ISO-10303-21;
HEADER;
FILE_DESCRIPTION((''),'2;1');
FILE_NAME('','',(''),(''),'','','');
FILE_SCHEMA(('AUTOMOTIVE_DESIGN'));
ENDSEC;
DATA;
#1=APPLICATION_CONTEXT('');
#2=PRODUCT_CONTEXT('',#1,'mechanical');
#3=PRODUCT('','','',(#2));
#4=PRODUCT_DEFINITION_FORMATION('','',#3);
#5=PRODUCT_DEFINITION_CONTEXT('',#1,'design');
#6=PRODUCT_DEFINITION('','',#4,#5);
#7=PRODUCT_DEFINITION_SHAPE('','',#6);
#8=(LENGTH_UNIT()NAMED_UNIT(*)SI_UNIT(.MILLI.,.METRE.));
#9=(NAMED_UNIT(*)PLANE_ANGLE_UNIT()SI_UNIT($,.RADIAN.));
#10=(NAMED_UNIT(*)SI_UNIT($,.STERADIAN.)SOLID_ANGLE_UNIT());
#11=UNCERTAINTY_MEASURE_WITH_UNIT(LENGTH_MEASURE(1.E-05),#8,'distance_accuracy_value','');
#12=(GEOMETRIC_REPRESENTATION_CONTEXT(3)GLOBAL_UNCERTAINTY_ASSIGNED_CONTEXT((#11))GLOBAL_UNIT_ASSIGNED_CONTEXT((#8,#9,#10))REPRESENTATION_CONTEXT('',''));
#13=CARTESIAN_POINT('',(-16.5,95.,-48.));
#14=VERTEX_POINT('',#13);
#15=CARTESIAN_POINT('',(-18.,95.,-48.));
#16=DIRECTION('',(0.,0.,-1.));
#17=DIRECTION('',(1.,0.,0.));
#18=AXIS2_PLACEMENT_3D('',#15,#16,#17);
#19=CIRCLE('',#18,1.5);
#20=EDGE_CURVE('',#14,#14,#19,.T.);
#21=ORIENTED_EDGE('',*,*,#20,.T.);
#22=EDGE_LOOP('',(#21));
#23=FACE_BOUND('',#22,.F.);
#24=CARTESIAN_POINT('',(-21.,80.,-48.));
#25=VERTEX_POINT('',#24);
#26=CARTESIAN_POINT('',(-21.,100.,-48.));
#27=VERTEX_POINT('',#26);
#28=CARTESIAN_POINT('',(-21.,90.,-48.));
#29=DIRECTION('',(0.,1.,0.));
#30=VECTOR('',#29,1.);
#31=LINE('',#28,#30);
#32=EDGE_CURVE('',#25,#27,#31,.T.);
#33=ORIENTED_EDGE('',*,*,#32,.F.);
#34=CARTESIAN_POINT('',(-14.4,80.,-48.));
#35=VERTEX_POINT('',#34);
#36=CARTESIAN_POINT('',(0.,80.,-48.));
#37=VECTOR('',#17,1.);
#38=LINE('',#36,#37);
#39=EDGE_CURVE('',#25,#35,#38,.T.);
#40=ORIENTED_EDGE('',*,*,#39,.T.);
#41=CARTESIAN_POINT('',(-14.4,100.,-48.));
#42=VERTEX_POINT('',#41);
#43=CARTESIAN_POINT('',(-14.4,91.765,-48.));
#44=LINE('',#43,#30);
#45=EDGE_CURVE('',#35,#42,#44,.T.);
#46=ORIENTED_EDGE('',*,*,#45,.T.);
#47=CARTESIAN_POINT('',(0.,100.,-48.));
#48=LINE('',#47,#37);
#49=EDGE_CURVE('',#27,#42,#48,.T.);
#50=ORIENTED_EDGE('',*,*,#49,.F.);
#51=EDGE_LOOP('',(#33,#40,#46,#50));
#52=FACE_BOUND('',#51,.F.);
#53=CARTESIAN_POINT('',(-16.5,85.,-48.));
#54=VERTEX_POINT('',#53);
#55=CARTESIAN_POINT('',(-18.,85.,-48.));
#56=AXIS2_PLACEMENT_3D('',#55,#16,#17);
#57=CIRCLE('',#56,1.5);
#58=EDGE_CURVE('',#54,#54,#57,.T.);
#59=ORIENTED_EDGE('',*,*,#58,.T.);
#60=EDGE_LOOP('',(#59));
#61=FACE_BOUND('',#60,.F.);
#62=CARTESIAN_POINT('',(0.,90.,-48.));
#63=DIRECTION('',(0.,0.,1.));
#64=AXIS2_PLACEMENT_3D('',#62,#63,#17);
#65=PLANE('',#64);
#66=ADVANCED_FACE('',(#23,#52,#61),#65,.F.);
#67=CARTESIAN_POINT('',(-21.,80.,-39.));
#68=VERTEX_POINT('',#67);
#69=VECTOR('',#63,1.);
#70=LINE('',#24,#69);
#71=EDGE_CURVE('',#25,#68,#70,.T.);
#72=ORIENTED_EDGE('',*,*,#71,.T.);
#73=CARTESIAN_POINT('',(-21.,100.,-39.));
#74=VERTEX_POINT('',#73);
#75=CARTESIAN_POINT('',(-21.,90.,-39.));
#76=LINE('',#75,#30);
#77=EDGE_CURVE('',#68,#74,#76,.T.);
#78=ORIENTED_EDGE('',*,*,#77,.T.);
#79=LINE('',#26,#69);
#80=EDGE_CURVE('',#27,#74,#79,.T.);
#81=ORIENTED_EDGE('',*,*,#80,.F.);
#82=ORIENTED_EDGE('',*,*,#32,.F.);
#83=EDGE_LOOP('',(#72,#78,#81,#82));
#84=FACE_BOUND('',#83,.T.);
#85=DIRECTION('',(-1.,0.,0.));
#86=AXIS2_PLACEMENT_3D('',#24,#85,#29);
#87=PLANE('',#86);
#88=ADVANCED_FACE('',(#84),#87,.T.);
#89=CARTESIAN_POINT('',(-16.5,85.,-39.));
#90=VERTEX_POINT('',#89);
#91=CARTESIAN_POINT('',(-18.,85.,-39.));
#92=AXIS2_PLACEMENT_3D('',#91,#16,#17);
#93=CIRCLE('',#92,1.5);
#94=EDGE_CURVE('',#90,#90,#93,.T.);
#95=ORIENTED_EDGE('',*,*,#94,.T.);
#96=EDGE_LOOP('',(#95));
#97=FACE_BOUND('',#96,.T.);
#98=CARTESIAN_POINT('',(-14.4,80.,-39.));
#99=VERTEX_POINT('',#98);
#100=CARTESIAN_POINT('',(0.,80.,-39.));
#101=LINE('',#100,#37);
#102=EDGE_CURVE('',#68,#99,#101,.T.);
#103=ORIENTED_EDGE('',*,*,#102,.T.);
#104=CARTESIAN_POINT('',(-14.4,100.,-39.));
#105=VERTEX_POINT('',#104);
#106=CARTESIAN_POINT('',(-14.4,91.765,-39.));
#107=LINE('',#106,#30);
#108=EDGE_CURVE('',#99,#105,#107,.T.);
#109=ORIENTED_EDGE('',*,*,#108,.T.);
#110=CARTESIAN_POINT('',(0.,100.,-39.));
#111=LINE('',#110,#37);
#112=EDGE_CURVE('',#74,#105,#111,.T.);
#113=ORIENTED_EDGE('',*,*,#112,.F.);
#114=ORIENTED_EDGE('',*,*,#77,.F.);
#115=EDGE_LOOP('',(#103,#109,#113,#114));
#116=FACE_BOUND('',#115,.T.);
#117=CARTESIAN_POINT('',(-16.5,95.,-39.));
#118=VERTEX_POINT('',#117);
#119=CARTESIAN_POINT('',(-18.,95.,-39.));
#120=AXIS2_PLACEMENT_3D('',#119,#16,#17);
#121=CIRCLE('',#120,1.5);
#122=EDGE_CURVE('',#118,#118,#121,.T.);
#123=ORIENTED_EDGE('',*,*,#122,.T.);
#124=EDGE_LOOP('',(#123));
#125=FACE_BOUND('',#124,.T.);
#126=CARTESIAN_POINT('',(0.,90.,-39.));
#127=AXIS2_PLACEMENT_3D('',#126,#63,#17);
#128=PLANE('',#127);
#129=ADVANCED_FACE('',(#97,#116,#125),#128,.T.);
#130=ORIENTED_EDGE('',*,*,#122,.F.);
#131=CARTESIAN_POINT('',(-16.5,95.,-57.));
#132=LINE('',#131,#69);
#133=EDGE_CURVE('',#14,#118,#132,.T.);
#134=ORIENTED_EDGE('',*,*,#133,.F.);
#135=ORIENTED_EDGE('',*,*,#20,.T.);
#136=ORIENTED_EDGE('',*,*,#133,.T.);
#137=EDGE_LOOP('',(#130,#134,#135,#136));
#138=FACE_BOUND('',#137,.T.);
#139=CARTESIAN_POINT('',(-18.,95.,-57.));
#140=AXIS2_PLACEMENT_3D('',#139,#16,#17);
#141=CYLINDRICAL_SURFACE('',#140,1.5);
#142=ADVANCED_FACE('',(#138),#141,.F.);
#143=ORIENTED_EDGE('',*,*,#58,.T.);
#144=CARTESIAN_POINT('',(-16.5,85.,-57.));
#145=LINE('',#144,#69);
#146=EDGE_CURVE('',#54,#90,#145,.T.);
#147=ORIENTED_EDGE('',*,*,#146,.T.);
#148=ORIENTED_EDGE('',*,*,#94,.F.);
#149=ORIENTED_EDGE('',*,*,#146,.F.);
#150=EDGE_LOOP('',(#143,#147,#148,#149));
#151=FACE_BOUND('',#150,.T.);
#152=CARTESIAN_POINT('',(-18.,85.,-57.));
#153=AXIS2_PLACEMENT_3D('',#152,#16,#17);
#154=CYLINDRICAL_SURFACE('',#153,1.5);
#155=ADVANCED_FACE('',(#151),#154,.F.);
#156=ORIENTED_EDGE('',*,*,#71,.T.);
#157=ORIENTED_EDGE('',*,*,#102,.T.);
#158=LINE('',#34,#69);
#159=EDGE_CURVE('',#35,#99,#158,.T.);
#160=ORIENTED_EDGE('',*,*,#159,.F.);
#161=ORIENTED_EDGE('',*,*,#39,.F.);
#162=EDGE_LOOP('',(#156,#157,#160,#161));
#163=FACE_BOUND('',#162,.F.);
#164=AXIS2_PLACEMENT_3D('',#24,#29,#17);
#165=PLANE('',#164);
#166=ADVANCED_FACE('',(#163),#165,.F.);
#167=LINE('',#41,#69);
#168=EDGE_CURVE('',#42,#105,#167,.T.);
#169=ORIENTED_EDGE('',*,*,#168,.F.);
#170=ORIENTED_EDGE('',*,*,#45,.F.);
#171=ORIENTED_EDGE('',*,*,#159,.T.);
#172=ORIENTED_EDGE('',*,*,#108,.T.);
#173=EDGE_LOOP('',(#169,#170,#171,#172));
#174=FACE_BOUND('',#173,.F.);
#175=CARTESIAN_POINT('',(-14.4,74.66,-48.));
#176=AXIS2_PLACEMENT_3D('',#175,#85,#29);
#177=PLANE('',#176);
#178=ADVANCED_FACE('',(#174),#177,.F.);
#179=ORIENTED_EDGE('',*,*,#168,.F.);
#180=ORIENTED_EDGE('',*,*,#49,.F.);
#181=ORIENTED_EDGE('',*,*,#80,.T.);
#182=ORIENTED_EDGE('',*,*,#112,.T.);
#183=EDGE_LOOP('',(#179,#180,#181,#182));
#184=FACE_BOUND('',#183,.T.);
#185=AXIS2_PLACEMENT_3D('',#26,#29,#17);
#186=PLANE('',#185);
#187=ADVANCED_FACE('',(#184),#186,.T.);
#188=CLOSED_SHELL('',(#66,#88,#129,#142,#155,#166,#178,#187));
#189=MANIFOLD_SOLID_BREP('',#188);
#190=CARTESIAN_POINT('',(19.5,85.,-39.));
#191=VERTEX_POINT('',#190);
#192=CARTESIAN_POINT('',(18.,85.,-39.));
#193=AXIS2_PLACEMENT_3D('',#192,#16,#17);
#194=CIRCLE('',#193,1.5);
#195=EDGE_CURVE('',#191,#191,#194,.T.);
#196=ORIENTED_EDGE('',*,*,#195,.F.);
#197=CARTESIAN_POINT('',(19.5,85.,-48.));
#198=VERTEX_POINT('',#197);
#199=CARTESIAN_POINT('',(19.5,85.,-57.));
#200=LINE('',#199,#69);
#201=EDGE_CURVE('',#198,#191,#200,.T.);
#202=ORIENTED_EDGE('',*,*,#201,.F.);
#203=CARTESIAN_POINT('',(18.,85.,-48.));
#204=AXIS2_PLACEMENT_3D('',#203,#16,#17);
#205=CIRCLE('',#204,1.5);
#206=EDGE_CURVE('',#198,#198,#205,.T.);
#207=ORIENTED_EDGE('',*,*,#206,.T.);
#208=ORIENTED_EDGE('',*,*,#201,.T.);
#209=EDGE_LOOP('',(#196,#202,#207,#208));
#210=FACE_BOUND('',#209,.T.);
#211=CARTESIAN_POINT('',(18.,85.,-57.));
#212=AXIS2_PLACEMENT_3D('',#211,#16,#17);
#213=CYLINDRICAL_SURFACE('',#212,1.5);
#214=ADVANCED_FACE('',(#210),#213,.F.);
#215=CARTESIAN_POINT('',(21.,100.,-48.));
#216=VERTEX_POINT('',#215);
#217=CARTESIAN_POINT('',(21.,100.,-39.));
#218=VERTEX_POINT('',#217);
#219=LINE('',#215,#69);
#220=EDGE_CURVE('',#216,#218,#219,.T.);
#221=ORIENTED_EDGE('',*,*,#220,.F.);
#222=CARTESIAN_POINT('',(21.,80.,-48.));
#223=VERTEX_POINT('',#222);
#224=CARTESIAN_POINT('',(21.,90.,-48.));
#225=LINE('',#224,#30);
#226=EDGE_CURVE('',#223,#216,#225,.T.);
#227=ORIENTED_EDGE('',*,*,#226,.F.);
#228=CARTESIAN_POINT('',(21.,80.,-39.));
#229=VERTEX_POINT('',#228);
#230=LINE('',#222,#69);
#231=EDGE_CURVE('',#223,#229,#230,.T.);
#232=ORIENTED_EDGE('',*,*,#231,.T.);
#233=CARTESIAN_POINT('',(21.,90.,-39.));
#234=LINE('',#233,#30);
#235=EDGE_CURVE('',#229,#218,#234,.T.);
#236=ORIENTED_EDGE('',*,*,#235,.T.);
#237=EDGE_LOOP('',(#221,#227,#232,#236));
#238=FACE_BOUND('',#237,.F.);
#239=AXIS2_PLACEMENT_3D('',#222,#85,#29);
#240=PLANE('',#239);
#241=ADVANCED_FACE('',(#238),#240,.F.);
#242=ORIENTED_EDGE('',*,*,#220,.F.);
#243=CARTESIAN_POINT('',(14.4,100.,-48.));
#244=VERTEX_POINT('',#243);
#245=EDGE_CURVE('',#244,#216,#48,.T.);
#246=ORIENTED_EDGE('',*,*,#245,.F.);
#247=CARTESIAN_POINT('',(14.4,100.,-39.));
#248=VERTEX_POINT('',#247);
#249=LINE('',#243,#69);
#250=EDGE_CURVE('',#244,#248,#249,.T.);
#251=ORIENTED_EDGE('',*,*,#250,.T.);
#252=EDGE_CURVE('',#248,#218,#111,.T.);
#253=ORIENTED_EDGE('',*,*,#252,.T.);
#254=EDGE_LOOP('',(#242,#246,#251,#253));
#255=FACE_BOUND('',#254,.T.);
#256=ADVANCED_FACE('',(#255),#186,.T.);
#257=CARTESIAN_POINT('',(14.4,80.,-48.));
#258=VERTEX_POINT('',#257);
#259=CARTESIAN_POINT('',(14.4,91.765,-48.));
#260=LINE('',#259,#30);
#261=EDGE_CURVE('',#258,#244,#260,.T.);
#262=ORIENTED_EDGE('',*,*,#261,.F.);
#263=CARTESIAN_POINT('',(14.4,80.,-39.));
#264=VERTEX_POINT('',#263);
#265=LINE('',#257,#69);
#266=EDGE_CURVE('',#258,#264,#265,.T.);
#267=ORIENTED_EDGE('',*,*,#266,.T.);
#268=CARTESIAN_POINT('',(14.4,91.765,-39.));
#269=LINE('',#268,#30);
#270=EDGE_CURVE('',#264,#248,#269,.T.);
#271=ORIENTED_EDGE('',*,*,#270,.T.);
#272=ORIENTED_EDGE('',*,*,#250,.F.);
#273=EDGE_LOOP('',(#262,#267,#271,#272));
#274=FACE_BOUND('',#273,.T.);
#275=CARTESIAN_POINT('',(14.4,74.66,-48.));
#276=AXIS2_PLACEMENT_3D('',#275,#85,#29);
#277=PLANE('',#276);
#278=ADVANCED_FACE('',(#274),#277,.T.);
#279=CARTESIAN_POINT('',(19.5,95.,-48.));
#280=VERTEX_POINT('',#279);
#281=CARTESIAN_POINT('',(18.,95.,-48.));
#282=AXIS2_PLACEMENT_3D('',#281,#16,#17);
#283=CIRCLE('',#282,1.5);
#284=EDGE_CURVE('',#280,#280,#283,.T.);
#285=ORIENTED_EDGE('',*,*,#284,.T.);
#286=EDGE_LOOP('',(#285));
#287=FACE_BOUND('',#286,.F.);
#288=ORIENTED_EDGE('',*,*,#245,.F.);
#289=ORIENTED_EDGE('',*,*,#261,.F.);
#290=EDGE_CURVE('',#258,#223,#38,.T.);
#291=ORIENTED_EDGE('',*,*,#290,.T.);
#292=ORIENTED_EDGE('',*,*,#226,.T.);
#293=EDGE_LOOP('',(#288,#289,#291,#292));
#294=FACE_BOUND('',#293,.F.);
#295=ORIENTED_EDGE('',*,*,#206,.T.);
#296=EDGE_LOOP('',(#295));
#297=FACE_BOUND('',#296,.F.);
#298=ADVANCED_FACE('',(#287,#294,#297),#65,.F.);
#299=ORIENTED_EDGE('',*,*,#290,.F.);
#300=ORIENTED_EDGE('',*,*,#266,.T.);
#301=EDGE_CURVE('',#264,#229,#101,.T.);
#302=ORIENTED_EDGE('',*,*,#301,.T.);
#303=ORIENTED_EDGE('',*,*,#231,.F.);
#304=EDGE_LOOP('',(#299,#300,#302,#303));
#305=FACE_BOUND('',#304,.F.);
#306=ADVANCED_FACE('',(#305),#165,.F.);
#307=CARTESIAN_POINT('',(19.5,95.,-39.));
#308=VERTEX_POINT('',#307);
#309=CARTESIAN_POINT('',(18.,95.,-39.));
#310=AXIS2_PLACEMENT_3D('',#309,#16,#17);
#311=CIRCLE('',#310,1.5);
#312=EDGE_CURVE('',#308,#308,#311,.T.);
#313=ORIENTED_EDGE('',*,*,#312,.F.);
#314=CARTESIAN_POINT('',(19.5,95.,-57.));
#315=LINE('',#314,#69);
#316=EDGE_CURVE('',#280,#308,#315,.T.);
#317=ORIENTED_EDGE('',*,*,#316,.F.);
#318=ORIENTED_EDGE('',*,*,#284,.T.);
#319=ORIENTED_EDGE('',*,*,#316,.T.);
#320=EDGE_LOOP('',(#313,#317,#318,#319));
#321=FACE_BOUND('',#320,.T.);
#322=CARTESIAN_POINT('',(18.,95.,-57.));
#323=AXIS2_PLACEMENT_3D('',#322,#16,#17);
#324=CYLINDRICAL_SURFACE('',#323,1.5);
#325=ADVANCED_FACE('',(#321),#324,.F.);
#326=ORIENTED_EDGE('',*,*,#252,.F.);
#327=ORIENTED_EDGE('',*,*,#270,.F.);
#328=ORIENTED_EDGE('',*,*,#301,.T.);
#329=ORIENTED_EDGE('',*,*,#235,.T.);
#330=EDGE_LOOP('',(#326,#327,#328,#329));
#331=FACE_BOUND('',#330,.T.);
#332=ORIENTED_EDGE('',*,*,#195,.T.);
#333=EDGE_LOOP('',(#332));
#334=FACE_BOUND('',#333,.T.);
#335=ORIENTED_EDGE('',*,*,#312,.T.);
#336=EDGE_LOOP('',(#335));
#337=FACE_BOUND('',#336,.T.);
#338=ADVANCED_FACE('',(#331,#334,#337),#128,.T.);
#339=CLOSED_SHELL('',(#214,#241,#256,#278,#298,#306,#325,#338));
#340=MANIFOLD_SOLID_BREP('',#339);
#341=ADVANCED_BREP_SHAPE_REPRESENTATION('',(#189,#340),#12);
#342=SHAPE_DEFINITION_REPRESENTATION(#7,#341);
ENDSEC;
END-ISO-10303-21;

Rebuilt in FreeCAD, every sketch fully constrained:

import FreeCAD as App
import Part
import Sketcher
from FreeCAD import Vector
Q = App.Units.Quantity


def add_polygon(sketch, points):
    """Adds a closed chain of lines whose ends are joined by coincident constraints."""
    first, n = sketch.GeometryCount, len(points)
    for a, b in zip(points, points[1:] + points[:1]):
        sketch.addGeometry(Part.LineSegment(App.Vector(*a, 0), App.Vector(*b, 0)), False)
    for i in range(n):
        sketch.addConstraint(Sketcher.Constraint("Coincident", first + i, 2, first + (i + 1) % n, 1))

doc = App.newDocument("Part")
body = doc.addObject("PartDesign::Body", "Body")

sketch1 = body.newObject("Sketcher::SketchObject", "Sketch")
sketch1.AttachmentSupport = (doc.getObject("XY_Plane"), [""])
sketch1.MapMode = "FlatFace"
sketch1.AttachmentOffset = App.Placement(Vector(0, 0, -57), App.Rotation())
sketch1.addGeometry(Part.Circle(Vector(18, 85, 0), Vector(0, 0, 1), 1.5), False)
sketch1.addConstraint([
    Sketcher.Constraint("Diameter", 0, Q("3 mm")),
    Sketcher.Constraint("DistanceX", -1, 1, 0, 3, Q("18 mm")),
    Sketcher.Constraint("DistanceY", -1, 1, 0, 3, Q("85 mm")),
])
pad1 = body.newObject("PartDesign::Pad", "Pad")
pad1.Profile = sketch1
pad1.Length = 60
body2 = doc.addObject("PartDesign::Body", "Body001")

sketch2 = body2.newObject("Sketcher::SketchObject", "Sketch001")
sketch2.AttachmentSupport = (doc.getObject("XY_Plane001"), [""])
sketch2.MapMode = "FlatFace"
sketch2.AttachmentOffset = App.Placement(Vector(0, 0, -57), App.Rotation())
sketch2.addGeometry(Part.Circle(Vector(-18, 85, 0), Vector(0, 0, 1), 1.5), False)
sketch2.addConstraint([
    Sketcher.Constraint("Diameter", 0, Q("3 mm")),
    Sketcher.Constraint("DistanceX", 0, 3, -1, 1, Q("18 mm")),
    Sketcher.Constraint("DistanceY", -1, 1, 0, 3, Q("85 mm")),
])
pad2 = body2.newObject("PartDesign::Pad", "Pad001")
pad2.Profile = sketch2
pad2.Length = 60
body3 = doc.addObject("PartDesign::Body", "Body002")

sketch3 = body3.newObject("Sketcher::SketchObject", "Sketch002")
sketch3.AttachmentSupport = (doc.getObject("XY_Plane002"), [""])
sketch3.MapMode = "FlatFace"
sketch3.AttachmentOffset = App.Placement(Vector(0, 0, -57), App.Rotation())
sketch3.addGeometry(Part.Circle(Vector(-18, 95, 0), Vector(0, 0, 1), 1.5), False)
sketch3.addConstraint([
    Sketcher.Constraint("Diameter", 0, Q("3 mm")),
    Sketcher.Constraint("DistanceX", 0, 3, -1, 1, Q("18 mm")),
    Sketcher.Constraint("DistanceY", -1, 1, 0, 3, Q("95 mm")),
])
pad3 = body3.newObject("PartDesign::Pad", "Pad002")
pad3.Profile = sketch3
pad3.Length = 60
body4 = doc.addObject("PartDesign::Body", "Body003")
body4.AllowCompound = True

sketch4 = body4.newObject("Sketcher::SketchObject", "Sketch003")
sketch4.AttachmentSupport = (doc.getObject("XY_Plane003"), [""])
sketch4.MapMode = "FlatFace"
sketch4.AttachmentOffset = App.Placement(Vector(0, 0, -57), App.Rotation())
sketch4.addGeometry(Part.Circle(Vector(18, 95, 0), Vector(0, 0, 1), 1.5), False)
sketch4.addConstraint([
    Sketcher.Constraint("Diameter", 0, Q("3 mm")),
    Sketcher.Constraint("DistanceX", -1, 1, 0, 3, Q("18 mm")),
    Sketcher.Constraint("DistanceY", -1, 1, 0, 3, Q("95 mm")),
])
pad4 = body4.newObject("PartDesign::Pad", "Pad003")
pad4.Profile = sketch4
pad4.Length = 60
doc.recompute()

boolean = body4.newObject("PartDesign::Boolean", "Boolean")
boolean.Type = "Fuse"
boolean.addObjects([body])
doc.recompute()

boolean2 = body4.newObject("PartDesign::Boolean", "Boolean001")
boolean2.Type = "Fuse"
boolean2.addObjects([body2])
doc.recompute()

boolean3 = body4.newObject("PartDesign::Boolean", "Boolean002")
boolean3.Type = "Fuse"
boolean3.addObjects([body3])
body5 = doc.addObject("PartDesign::Body", "Body004")

sketch5 = body5.newObject("Sketcher::SketchObject", "Sketch004")
sketch5.AttachmentSupport = (doc.getObject("XY_Plane004"), [""])
sketch5.MapMode = "FlatFace"
sketch5.AttachmentOffset = App.Placement(Vector(0, 0, 34), App.Rotation())
add_polygon(sketch5, [(-14.4, 18.87), (-14.4, -15.34), (14.4, -15.34), (14.4, 18.87)])
sketch5.addConstraint([
    Sketcher.Constraint("Vertical", 0),
    Sketcher.Constraint("Horizontal", 1),
    Sketcher.Constraint("Vertical", 2),
    Sketcher.Constraint("Horizontal", 3),
    Sketcher.Constraint("DistanceX", 1, 1, 1, 2, Q("28.8 mm")),
    Sketcher.Constraint("DistanceY", 0, 2, 0, 1, Q("34.21 mm")),
    Sketcher.Constraint("DistanceX", 0, 2, -1, 1, Q("14.4 mm")),
    Sketcher.Constraint("DistanceY", 0, 2, -1, 1, Q("15.34 mm")),
])
pad5 = body5.newObject("PartDesign::Pad", "Pad004")
pad5.Profile = sketch5
pad5.Length = 9
body6 = doc.addObject("PartDesign::Body", "Body005")
doc.recompute()

body5.Placement = App.Placement(Vector(0, 90, -83), App.Rotation(Vector(0, 0, 1), 0))
boolean4 = body6.newObject("PartDesign::Boolean", "Boolean003")
boolean4.Type = "Fuse"
boolean4.addObjects([body5])
body7 = doc.addObject("PartDesign::Body", "Body006")
body7.AllowCompound = True

sketch6 = body7.newObject("Sketcher::SketchObject", "Sketch005")
sketch6.AttachmentSupport = (doc.getObject("XY_Plane006"), [""])
sketch6.MapMode = "FlatFace"
sketch6.AttachmentOffset = App.Placement(Vector(0, 0, -49), App.Rotation())
add_polygon(sketch6, [(-21, 100), (-21, 80), (21, 80), (21, 100)])
sketch6.addConstraint([
    Sketcher.Constraint("Vertical", 0),
    Sketcher.Constraint("Horizontal", 1),
    Sketcher.Constraint("Vertical", 2),
    Sketcher.Constraint("Horizontal", 3),
    Sketcher.Constraint("DistanceX", 1, 1, 1, 2, Q("42 mm")),
    Sketcher.Constraint("DistanceY", 0, 2, 0, 1, Q("20 mm")),
    Sketcher.Constraint("DistanceX", 0, 2, -1, 1, Q("21 mm")),
    Sketcher.Constraint("DistanceY", -1, 1, 0, 2, Q("80 mm")),
])
pad6 = body7.newObject("PartDesign::Pad", "Pad005")
pad6.Profile = sketch6
pad6.Length = 9
doc.recompute()

boolean5 = body7.newObject("PartDesign::Boolean", "Boolean004")
boolean5.Type = "Cut"
boolean5.addObjects([body6])
body8 = doc.addObject("PartDesign::Body", "Body007")
body8.AllowCompound = True
doc.recompute()

body7.Placement = App.Placement(Vector(0, 0, 1), App.Rotation(Vector(0, 0, 1), 0))
boolean6 = body8.newObject("PartDesign::Boolean", "Boolean005")
boolean6.Type = "Fuse"
boolean6.addObjects([body7])
doc.recompute()

boolean7 = body8.newObject("PartDesign::Boolean", "Boolean006")
boolean7.Type = "Cut"
boolean7.addObjects([body4])

doc.recompute()
